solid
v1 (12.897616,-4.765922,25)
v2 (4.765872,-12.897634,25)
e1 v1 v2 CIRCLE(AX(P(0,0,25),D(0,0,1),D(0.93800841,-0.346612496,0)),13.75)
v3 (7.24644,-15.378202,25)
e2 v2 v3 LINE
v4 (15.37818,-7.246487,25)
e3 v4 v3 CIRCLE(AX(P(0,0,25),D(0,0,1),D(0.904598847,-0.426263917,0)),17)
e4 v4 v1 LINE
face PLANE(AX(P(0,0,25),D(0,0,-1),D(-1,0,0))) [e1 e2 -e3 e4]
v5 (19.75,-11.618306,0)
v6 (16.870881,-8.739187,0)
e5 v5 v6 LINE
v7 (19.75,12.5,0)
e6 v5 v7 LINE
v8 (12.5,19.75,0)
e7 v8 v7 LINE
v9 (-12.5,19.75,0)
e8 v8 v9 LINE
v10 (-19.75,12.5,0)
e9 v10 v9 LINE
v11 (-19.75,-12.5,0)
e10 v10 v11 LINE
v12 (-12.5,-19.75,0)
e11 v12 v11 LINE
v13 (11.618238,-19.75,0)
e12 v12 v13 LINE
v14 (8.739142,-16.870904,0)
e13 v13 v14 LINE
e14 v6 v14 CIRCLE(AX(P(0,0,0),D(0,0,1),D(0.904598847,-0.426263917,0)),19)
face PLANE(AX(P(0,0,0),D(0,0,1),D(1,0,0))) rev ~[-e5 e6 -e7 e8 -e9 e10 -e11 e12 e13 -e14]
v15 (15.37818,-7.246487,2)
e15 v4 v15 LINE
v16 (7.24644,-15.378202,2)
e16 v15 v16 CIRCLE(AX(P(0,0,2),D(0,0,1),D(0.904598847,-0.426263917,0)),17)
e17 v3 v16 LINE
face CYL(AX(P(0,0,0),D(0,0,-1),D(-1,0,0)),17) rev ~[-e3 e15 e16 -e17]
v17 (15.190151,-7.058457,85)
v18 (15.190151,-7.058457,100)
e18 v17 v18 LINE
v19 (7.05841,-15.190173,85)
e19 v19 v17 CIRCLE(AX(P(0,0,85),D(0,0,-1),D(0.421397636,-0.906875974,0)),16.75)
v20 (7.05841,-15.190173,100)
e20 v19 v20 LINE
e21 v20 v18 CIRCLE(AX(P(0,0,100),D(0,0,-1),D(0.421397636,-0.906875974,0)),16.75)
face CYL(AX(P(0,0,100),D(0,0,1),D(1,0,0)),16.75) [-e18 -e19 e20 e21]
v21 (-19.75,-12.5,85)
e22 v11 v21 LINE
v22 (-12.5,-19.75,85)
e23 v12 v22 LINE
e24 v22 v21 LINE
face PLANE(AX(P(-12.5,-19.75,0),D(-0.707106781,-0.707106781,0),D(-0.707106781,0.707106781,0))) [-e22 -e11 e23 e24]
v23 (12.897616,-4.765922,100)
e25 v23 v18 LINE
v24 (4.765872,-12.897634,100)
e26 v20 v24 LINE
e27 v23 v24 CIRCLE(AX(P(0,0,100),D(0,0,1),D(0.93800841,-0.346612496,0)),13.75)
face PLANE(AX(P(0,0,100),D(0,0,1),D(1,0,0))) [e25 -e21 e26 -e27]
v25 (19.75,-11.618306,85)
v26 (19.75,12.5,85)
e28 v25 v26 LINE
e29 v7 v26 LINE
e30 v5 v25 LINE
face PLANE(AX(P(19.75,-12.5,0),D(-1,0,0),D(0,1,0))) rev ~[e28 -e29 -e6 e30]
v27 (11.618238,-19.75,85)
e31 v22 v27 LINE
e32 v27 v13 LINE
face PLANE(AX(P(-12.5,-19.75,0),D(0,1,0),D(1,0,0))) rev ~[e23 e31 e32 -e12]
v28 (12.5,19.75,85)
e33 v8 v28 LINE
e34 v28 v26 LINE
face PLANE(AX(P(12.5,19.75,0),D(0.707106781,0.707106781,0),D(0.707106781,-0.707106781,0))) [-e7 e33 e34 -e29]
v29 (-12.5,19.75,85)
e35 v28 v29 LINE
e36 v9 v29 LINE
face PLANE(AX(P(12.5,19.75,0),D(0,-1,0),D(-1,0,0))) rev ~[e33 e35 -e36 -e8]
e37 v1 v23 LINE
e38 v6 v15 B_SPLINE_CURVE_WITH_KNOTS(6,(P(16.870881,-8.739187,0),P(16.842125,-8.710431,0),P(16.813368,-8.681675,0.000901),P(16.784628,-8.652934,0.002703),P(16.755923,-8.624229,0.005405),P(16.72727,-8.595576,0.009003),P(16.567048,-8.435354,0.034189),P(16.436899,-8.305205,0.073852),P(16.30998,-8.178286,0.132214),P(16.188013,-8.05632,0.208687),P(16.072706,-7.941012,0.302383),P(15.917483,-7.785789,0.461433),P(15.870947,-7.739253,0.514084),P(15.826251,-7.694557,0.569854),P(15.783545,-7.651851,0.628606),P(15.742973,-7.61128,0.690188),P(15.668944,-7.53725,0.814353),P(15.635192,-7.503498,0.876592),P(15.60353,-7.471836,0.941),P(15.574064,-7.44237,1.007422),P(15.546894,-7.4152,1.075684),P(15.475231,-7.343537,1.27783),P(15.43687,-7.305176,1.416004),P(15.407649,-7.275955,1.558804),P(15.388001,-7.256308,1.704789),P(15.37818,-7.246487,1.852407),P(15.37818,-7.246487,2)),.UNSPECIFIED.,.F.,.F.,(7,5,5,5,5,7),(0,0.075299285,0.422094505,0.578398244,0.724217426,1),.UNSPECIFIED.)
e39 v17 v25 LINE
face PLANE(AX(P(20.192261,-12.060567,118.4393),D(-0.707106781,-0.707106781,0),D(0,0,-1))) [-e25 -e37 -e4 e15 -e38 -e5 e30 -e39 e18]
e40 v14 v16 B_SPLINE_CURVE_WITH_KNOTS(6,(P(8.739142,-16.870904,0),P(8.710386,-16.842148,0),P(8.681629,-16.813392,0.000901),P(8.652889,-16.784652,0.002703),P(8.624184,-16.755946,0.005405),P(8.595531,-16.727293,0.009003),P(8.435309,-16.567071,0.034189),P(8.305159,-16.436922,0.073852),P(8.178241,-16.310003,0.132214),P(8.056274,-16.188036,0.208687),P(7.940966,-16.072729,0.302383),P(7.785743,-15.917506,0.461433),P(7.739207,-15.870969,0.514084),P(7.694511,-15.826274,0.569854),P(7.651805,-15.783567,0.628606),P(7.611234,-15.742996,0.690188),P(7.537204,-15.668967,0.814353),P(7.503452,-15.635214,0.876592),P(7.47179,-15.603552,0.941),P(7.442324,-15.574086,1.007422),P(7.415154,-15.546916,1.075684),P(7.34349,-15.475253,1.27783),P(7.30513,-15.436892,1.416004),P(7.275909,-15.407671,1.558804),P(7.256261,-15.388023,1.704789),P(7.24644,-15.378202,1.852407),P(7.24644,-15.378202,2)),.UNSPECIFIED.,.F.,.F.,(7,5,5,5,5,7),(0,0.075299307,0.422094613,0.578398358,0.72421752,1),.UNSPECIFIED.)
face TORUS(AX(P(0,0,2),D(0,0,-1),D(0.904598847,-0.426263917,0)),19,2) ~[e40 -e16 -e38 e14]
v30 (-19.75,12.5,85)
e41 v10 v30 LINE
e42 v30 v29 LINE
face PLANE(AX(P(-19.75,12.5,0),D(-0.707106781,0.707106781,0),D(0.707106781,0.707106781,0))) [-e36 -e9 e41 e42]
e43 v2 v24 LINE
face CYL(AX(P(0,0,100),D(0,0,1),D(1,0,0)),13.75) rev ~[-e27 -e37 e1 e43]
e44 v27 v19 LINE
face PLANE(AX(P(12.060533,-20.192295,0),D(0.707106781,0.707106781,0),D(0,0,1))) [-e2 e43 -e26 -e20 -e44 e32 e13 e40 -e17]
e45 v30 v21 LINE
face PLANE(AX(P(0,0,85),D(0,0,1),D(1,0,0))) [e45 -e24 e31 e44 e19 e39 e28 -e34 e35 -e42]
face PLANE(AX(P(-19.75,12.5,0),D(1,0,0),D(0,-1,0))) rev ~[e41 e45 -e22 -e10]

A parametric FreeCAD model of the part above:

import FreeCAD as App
import Part
import Sketcher

V = App.Vector
Q = App.Units.Quantity


def edges_at(feature, points):
    """Names of the edges that pass closest to the given points."""
    edges = feature.Shape.Edges
    near = lambda p: min(range(len(edges)), key=lambda i: edges[i].distToShape(Part.Vertex(*p))[0])
    return sorted({f"Edge{near(p) + 1}" for p in points})

doc = App.newDocument("Part")
body = doc.addObject("PartDesign::Body", "Body")

# Sketch on XY plane
sketch1 = body.newObject("Sketcher::SketchObject", "Sketch")
sketch1.AttachmentSupport = (doc.getObject("XY_Plane"), [""])
sketch1.MapMode = "FlatFace"
sketch1.addGeometry([
    Part.LineSegment(V(-20, -12, 0), V(-12, -20, 0)),  # 0
    Part.LineSegment(V(-12, -20, 0), V(12, -20, 0)),  # 1
    Part.LineSegment(V(12, -20, 0), V(20, -12, 0)),  # 2
    Part.LineSegment(V(20, -12, 0), V(20, 12, 0)),  # 3
    Part.LineSegment(V(20, 12, 0), V(12, 20, 0)),  # 4
    Part.LineSegment(V(12, 20, 0), V(-12, 20, 0)),  # 5
    Part.LineSegment(V(-12, 20, 0), V(-20, 12, 0)),  # 6
    Part.LineSegment(V(-20, 12, 0), V(-20, -12, 0)),  # 7
    Part.Circle(V(0, 0, 0), V(0, 0, 1), 10),  # 8
], False)
sketch1.addConstraint([
    Sketcher.Constraint("Coincident", 0, 2, 1, 1),
    Sketcher.Constraint("Coincident", 1, 2, 2, 1),
    Sketcher.Constraint("Coincident", 2, 2, 3, 1),
    Sketcher.Constraint("Coincident", 3, 2, 4, 1),
    Sketcher.Constraint("Coincident", 4, 2, 5, 1),
    Sketcher.Constraint("Coincident", 5, 2, 6, 1),
    Sketcher.Constraint("Coincident", 6, 2, 7, 1),
    Sketcher.Constraint("Coincident", 7, 2, 0, 1),
    Sketcher.Constraint("Horizontal", 1),
    Sketcher.Constraint("Vertical", 3),
    Sketcher.Constraint("Horizontal", 5),
    Sketcher.Constraint("Vertical", 7),
    Sketcher.Constraint("Coincident", 8, 3, -1, 1),
    Sketcher.Constraint("Symmetric", 0, 2, 4, 2, -1, 1),
    Sketcher.Constraint("Symmetric", 2, 2, 6, 2, -1, 1),
    Sketcher.Constraint("Perpendicular", 0, 2),
    Sketcher.Constraint("Perpendicular", 2, 4),
    Sketcher.Constraint("Perpendicular", 4, 6),
    Sketcher.Constraint("Horizontal", 3, 2, 6, 2),
    Sketcher.Constraint("Vertical", 1, 2, 4, 2),
    Sketcher.Constraint("Equal", 5, 3),
    Sketcher.Constraint("Diameter", 8, Q("20 mm")),
    Sketcher.Constraint("DistanceY", 1, 2, 4, 2, Q("39.5 mm")),
    Sketcher.Constraint("DistanceX", 1, 1, 1, 2, Q("25 mm")),
])
pad1 = body.newObject("PartDesign::Pad", "Pad")
pad1.Profile = sketch1
pad1.Length = 100

# Sketch on XY plane
sketch2 = body.newObject("Sketcher::SketchObject", "Sketch001")
sketch2.AttachmentSupport = (doc.getObject("XY_Plane"), [""])
sketch2.MapMode = "FlatFace"
sketch2.AttachmentOffset = App.Placement(V(0, 0, 100), App.Rotation())
sketch2.addGeometry(Part.Circle(V(0, 0, 0), V(0, 0, 1), 14), False)
sketch2.addConstraint([
    Sketcher.Constraint("Coincident", 0, 3, -1, 1),
    Sketcher.Constraint("Diameter", 0, Q("27.5 mm")),
])
pocket1 = body.newObject("PartDesign::Pocket", "Pocket")
pocket1.Profile = sketch2
pocket1.Length = 100

# Sketch on XY plane
sketch3 = body.newObject("Sketcher::SketchObject", "Sketch002")
sketch3.AttachmentSupport = (doc.getObject("XY_Plane"), [""])
sketch3.MapMode = "FlatFace"
sketch3.addGeometry(Part.Circle(V(0, 0, 0), V(0, 0, 1), 17), False)
sketch3.addConstraint([
    Sketcher.Constraint("Coincident", 0, 3, -1, 1),
    Sketcher.Constraint("Diameter", 0, Q("34 mm")),
])
pocket2 = body.newObject("PartDesign::Pocket", "Pocket001")
pocket2.Profile = sketch3
pocket2.Length = 25
pocket2.Reversed = True

# Sketch on XY plane
sketch4 = body.newObject("Sketcher::SketchObject", "Sketch003")
sketch4.AttachmentSupport = (doc.getObject("XY_Plane"), [""])
sketch4.MapMode = "FlatFace"
sketch4.AttachmentOffset = App.Placement(V(0, 0, 100), App.Rotation())
sketch4.addGeometry([
    Part.LineSegment(V(39, -25, 0), V(39, 24, 0)),  # 0
    Part.LineSegment(V(39, 24, 0), V(-33, 24, 0)),  # 1
    Part.LineSegment(V(-33, 24, 0), V(-33, -25, 0)),  # 2
    Part.LineSegment(V(-33, -25, 0), V(39, -25, 0)),  # 3
    Part.Circle(V(0, 0, 0), V(0, 0, 1), 17),  # 4
], False)
sketch4.addConstraint([
    Sketcher.Constraint("Coincident", 0, 2, 1, 1),
    Sketcher.Constraint("Coincident", 1, 2, 2, 1),
    Sketcher.Constraint("Coincident", 2, 2, 3, 1),
    Sketcher.Constraint("Coincident", 3, 2, 0, 1),
    Sketcher.Constraint("Vertical", 0),
    Sketcher.Constraint("Horizontal", 1),
    Sketcher.Constraint("Vertical", 2),
    Sketcher.Constraint("Horizontal", 3),
    Sketcher.Constraint("Coincident", 4, 3, -1, 1),
    Sketcher.Constraint("Diameter", 4, Q("33.5 mm")),
    Sketcher.Constraint("DistanceX", 1, 2, 1, 1, Q("71.981 mm")),
    Sketcher.Constraint("DistanceX", 1, 2, -1, 1, Q("32.83 mm")),
    Sketcher.Constraint("DistanceY", 0, 1, 0, 2, Q("49.1482 mm")),
    Sketcher.Constraint("DistanceY", -1, 1, 0, 2, Q("23.8646 mm")),
])
pocket3 = body.newObject("PartDesign::Pocket", "Pocket002")
pocket3.Profile = sketch4
pocket3.Length = 15

# Sketch on an angled plane
sketch5 = body.newObject("Sketcher::SketchObject", "Sketch004")
sketch5.Placement = App.Placement(V(12.5, -19.75, 85), App.Rotation(V(-0.707106781, -0.707106781, 0), V(0, 0, -0.999999999), V(0.707106781, -0.707106781, 0), "ZXY"))
sketch5.addGeometry([
    Part.LineSegment(V(1, 85, 0), V(-11, 85, 0)),
    Part.LineSegment(V(-11, 85, 0), V(-11, -33, 0)),
    Part.LineSegment(V(-11, -33, 0), V(1, -33, 0)),
    Part.LineSegment(V(1, -33, 0), V(1, 85, 0)),
], False)
sketch5.addConstraint([
    Sketcher.Constraint("Coincident", 0, 2, 1, 1),
    Sketcher.Constraint("Coincident", 1, 2, 2, 1),
    Sketcher.Constraint("Coincident", 2, 2, 3, 1),
    Sketcher.Constraint("Coincident", 3, 2, 0, 1),
    Sketcher.Constraint("Horizontal", 0),
    Sketcher.Constraint("Vertical", 1),
    Sketcher.Constraint("Horizontal", 2),
    Sketcher.Constraint("Vertical", 3),
    Sketcher.Constraint("DistanceX", 0, 2, 0, 1, Q("11.5 mm")),
    Sketcher.Constraint("DistanceY", -1, 1, 0, 2, Q("85 mm")),
    Sketcher.Constraint("DistanceY", 1, 2, 1, 1, Q("118.4393 mm")),
    Sketcher.Constraint("DistanceX", 0, 2, -1, 1, Q("10.8765 mm")),
])
pocket4 = body.newObject("PartDesign::Pocket", "Pocket003")
pocket4.Profile = sketch5
pocket4.Length = 20
doc.recompute()

fillet = body.newObject("PartDesign::Fillet", "Fillet")
fillet.Base = (pocket4, edges_at(pocket4, [(-12.021, 12.021, 0)]))
fillet.Radius = 2

doc.recompute()
